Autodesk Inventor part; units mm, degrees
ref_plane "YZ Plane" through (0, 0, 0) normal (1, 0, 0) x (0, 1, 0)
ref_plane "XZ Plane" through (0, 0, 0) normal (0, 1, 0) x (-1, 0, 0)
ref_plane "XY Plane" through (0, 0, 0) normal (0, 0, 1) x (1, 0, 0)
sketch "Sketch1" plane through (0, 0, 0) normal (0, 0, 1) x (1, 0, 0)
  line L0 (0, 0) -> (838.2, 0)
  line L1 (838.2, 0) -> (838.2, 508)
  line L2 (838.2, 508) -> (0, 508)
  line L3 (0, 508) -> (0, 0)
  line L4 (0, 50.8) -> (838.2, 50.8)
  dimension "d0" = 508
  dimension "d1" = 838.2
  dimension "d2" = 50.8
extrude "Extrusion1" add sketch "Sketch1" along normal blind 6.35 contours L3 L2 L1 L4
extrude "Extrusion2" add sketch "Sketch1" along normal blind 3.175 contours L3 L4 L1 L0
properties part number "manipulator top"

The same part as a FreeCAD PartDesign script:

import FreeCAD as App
import Part
import Sketcher
Q = App.Units.Quantity


def add_polygon(sketch, points):
    """Adds a closed chain of lines whose ends are joined by coincident constraints."""
    first, n = sketch.GeometryCount, len(points)
    for a, b in zip(points, points[1:] + points[:1]):
        sketch.addGeometry(Part.LineSegment(App.Vector(*a, 0), App.Vector(*b, 0)), False)
    for i in range(n):
        sketch.addConstraint(Sketcher.Constraint("Coincident", first + i, 2, first + (i + 1) % n, 1))

doc = App.newDocument("Part")
body = doc.addObject("PartDesign::Body", "Body")

sketch1 = body.newObject("Sketcher::SketchObject", "Sketch")
sketch1.AttachmentSupport = (doc.getObject("XY_Plane"), [""])
sketch1.MapMode = "FlatFace"
add_polygon(sketch1, [(0, 508), (0, 51), (838, 51), (838, 508)])
sketch1.addConstraint([
    Sketcher.Constraint("Vertical", 0),
    Sketcher.Constraint("Horizontal", 1),
    Sketcher.Constraint("Vertical", 2),
    Sketcher.Constraint("Horizontal", 3),
    Sketcher.Constraint("PointOnObject", 0, 2, -2),
    Sketcher.Constraint("DistanceX", 1, 1, 1, 2, Q("33 in")),
    Sketcher.Constraint("DistanceY", -1, 1, 0, 2, Q("2 in")),
    Sketcher.Constraint("DistanceY", -1, 1, 2, 2, Q("20 in")),
])
pad1 = body.newObject("PartDesign::Pad", "Pad")
pad1.Profile = sketch1
pad1.Length = Q("0.25 in")

sketch2 = body.newObject("Sketcher::SketchObject", "Sketch001")
sketch2.AttachmentSupport = (doc.getObject("XY_Plane"), [""])
sketch2.MapMode = "FlatFace"
add_polygon(sketch2, [(0, 51), (0, 0), (838, 0), (838, 51)])
sketch2.addConstraint([
    Sketcher.Constraint("Vertical", 0),
    Sketcher.Constraint("Horizontal", 1),
    Sketcher.Constraint("Vertical", 2),
    Sketcher.Constraint("Horizontal", 3),
    Sketcher.Constraint("Coincident", 0, 2, -1, 1),
    Sketcher.Constraint("DistanceX", 1, 1, 1, 2, Q("33 in")),
    Sketcher.Constraint("DistanceY", 0, 2, 0, 1, Q("2 in")),
])
pad2 = body.newObject("PartDesign::Pad", "Pad001")
pad2.Profile = sketch2
pad2.Length = Q("0.125 in")

doc.recompute()
